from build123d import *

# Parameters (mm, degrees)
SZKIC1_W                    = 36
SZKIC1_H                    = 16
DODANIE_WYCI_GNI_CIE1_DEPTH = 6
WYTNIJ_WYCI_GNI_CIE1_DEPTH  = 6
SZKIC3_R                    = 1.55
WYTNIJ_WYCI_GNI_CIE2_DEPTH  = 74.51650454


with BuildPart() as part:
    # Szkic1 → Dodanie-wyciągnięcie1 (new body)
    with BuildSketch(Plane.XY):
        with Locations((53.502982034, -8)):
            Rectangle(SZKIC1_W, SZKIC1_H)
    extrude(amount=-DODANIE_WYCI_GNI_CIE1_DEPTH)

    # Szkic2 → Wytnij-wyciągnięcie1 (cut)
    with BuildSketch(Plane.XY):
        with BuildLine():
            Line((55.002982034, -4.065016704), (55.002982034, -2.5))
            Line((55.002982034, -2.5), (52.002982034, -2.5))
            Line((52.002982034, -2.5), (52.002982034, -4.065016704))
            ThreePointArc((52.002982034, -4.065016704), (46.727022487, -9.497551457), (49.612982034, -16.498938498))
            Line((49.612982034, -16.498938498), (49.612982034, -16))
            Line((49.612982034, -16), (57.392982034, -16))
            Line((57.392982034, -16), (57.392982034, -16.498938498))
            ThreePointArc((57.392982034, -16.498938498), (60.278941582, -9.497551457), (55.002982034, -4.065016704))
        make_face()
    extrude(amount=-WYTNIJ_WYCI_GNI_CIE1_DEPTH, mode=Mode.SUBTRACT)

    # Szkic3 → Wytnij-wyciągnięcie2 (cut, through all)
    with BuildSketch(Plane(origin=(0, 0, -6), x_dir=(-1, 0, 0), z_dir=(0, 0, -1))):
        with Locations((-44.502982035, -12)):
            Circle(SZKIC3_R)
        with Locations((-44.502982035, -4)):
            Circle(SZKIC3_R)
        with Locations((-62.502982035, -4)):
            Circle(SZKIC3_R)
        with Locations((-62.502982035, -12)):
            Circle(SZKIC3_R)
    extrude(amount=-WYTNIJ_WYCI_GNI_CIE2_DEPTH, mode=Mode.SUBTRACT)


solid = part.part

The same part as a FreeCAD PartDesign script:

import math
import FreeCAD as App
import Part
import Sketcher

V = App.Vector

doc = App.newDocument("Part")
body = doc.addObject("PartDesign::Body", "Body")

# Sketch on XY plane
sketch1 = body.newObject("Sketcher::SketchObject", "Sketch")
sketch1.AttachmentSupport = (doc.getObject("XY_Plane"), [""])
sketch1.MapMode = "FlatFace"
sketch1.addGeometry([
    Part.LineSegment(V(35.502982, 0, 0), V(35.502982, -16, 0)),
    Part.LineSegment(V(35.502982, -16, 0), V(71.502982, -16, 0)),
    Part.LineSegment(V(71.502982, -16, 0), V(71.502982, 0, 0)),
    Part.LineSegment(V(71.502982, 0, 0), V(35.502982, 0, 0)),
], False)
sketch1.addConstraint([
    Sketcher.Constraint("Coincident", 0, 2, 1, 1),
    Sketcher.Constraint("Coincident", 1, 2, 2, 1),
    Sketcher.Constraint("Coincident", 2, 2, 3, 1),
    Sketcher.Constraint("Coincident", 3, 2, 0, 1),
    Sketcher.Constraint("Vertical", 0),
    Sketcher.Constraint("Horizontal", 1),
    Sketcher.Constraint("Vertical", 2),
    Sketcher.Constraint("Horizontal", 3),
    Sketcher.Constraint("PointOnObject", 2, 2, -1),
    Sketcher.Constraint("DistanceX", 1, 1, 1, 2, 36.0),
    Sketcher.Constraint("DistanceY", 0, 2, 0, 1, 16.0),
    Sketcher.Constraint("DistanceX", -1, 1, 0, 2, 35.502982),
])
pad1 = body.newObject("PartDesign::Pad", "Pad")
pad1.Profile = sketch1
pad1.Length = 6
pad1.Reversed = True

# Sketch on XY plane
sketch2 = body.newObject("Sketcher::SketchObject", "Sketch001")
sketch2.AttachmentSupport = (doc.getObject("XY_Plane"), [""])
sketch2.MapMode = "FlatFace"
sketch2.addGeometry([
    Part.LineSegment(V(55.002982, -4.065017, 0), V(55.002982, -2.5, 0)),  # 0
    Part.LineSegment(V(55.002982, -2.5, 0), V(52.002982, -2.5, 0)),  # 1
    Part.LineSegment(V(52.002982, -2.5, 0), V(52.002982, -4.065017, 0)),  # 2
    Part.ArcOfCircle(Part.Circle(V(53.502982, -10.8, 0), V(0, 0, 1), 6.9), math.radians(102.555858), math.radians(235.683209)),  # 3
    Part.LineSegment(V(49.612982, -16.498938, 0), V(49.612982, -16, 0)),  # 4
    Part.LineSegment(V(49.612982, -16, 0), V(57.392982, -16, 0)),  # 5
    Part.LineSegment(V(57.392982, -16, 0), V(57.392982, -16.498938, 0)),  # 6
    Part.ArcOfCircle(Part.Circle(V(53.502982, -10.8, 0), V(0, 0, 1), 6.9), math.radians(-55.683209), math.radians(77.444142)),  # 7
], False)
sketch2.addConstraint([
    Sketcher.Constraint("Coincident", 0, 2, 1, 1),
    Sketcher.Constraint("Coincident", 1, 2, 2, 1),
    Sketcher.Constraint("Coincident", 2, 2, 3, 1),
    Sketcher.Constraint("Coincident", 3, 2, 4, 1),
    Sketcher.Constraint("Coincident", 4, 2, 5, 1),
    Sketcher.Constraint("Coincident", 5, 2, 6, 1),
    Sketcher.Constraint("Coincident", 6, 2, 7, 1),
    Sketcher.Constraint("Coincident", 7, 2, 0, 1),
    Sketcher.Constraint("Vertical", 0),
    Sketcher.Constraint("Horizontal", 1),
    Sketcher.Constraint("Vertical", 2),
    Sketcher.Constraint("Vertical", 4),
    Sketcher.Constraint("Horizontal", 5),
    Sketcher.Constraint("Vertical", 6),
    Sketcher.Constraint("Coincident", 7, 3, 3, 3),
    Sketcher.Constraint("Equal", 3, 7),
    Sketcher.Constraint("Horizontal", 3, 2, 6, 2),
    Sketcher.Constraint("Horizontal", 2, 2, 7, 2),
    Sketcher.Constraint("Radius", 3, 6.9),
    Sketcher.Constraint("DistanceX", 1, 2, 1, 1, 3.0),
    Sketcher.Constraint("DistanceY", 4, 2, -1, 1, 16.0),
    Sketcher.Constraint("DistanceX", 5, 1, 5, 2, 7.78),
    Sketcher.Constraint("DistanceY", 3, 3, -1, 1, 10.8),
    Sketcher.Constraint("DistanceY", 0, 2, -1, 1, 2.5),
    Sketcher.Constraint("DistanceX", -1, 1, 3, 3, 53.502982),
])
pocket1 = body.newObject("PartDesign::Pocket", "Pocket")
pocket1.Profile = sketch2
pocket1.Length = 6

# Sketch on XY plane
sketch3 = body.newObject("Sketcher::SketchObject", "Sketch002")
sketch3.AttachmentSupport = (doc.getObject("XY_Plane"), [""])
sketch3.MapMode = "FlatFace"
sketch3.AttachmentOffset = App.Placement(V(0, 0, -6), App.Rotation())
sketch3.addGeometry([
    Part.Circle(V(44.502982, -12, 0), V(0, 0, 1), 1.55),
    Part.Circle(V(44.502982, -4, 0), V(0, 0, 1), 1.55),
    Part.Circle(V(62.502982, -4, 0), V(0, 0, 1), 1.55),
    Part.Circle(V(62.502982, -12, 0), V(0, 0, 1), 1.55),
], False)
sketch3.addConstraint([
    Sketcher.Constraint("Equal", 0, 1),
    Sketcher.Constraint("Equal", 1, 2),
    Sketcher.Constraint("Equal", 2, 3),
    Sketcher.Constraint("Horizontal", 1, 3, 2, 3),
    Sketcher.Constraint("Horizontal", 0, 3, 3, 3),
    Sketcher.Constraint("Vertical", 0, 3, 1, 3),
    Sketcher.Constraint("Vertical", 2, 3, 3, 3),
    Sketcher.Constraint("Diameter", 0, 3.1),
    Sketcher.Constraint("DistanceY", 0, 3, -1, 1, 12.0),
    Sketcher.Constraint("DistanceY", 1, 3, -1, 1, 4.0),
    Sketcher.Constraint("DistanceX", 1, 3, 2, 3, 18.0),
    Sketcher.Constraint("DistanceX", -1, 1, 0, 3, 44.502982),
])
pocket2 = body.newObject("PartDesign::Pocket", "Pocket001")
pocket2.Profile = sketch3
pocket2.Type = "ThroughAll"
pocket2.Reversed = True

doc.recompute()
